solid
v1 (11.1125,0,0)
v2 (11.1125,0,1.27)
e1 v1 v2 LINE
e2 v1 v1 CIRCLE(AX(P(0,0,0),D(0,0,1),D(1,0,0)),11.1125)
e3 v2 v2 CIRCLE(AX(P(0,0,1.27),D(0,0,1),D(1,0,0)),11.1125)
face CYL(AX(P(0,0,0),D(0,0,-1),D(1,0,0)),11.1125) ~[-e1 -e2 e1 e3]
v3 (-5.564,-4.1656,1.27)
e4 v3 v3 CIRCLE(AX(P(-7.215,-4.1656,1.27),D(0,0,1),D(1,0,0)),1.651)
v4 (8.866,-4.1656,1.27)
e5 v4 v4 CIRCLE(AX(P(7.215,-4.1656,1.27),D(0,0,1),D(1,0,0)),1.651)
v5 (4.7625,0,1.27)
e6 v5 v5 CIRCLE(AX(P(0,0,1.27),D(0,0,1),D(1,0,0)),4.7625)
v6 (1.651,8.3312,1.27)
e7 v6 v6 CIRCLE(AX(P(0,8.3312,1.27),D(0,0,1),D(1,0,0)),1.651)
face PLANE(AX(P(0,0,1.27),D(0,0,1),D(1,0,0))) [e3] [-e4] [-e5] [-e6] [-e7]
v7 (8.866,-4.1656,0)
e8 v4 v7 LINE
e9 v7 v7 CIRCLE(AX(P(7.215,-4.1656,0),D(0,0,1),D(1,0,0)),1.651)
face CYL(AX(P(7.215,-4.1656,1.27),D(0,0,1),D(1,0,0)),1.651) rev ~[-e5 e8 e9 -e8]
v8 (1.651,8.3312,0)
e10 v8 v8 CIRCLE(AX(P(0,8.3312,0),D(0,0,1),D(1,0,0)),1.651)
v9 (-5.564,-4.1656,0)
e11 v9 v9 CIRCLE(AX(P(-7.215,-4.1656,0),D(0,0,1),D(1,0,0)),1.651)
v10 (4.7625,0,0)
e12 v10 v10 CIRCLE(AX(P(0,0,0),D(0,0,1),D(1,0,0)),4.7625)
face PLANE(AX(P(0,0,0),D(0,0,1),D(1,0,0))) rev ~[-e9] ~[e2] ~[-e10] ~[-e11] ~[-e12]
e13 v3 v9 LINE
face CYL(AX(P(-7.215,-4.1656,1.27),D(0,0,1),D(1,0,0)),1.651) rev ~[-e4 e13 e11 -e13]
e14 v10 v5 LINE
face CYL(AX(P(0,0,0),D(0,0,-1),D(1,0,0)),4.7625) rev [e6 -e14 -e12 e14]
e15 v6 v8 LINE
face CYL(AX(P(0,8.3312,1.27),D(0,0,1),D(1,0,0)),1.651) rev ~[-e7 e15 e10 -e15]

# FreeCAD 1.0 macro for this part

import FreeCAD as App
import Part
import Sketcher
Q = App.Units.Quantity

doc = App.newDocument("Part")
body = doc.addObject("PartDesign::Body", "Body")

# Sketch on XY plane
sketch1 = doc.addObject("Sketcher::SketchObject", "Sketch")
body.addObject(sketch1)
sketch1.AttachmentSupport = (doc.XY_Plane, [""])
sketch1.MapMode = "FlatFace"
sketch1.addGeometry(Part.Circle(App.Vector(0, 0, 0), App.Vector(0, 0, 1), 11.1), False)
sketch1.addGeometry(Part.Circle(App.Vector(0, 0, 0), App.Vector(0, 0, 1), 4.8), False)
sketch1.addConstraint(Sketcher.Constraint("Coincident", 0, 3, -1, 1))
sketch1.addConstraint(Sketcher.Constraint("Coincident", 1, 3, -1, 1))
sketch1.addConstraint(Sketcher.Constraint("Diameter", 0, Q("0.875 in")))
sketch1.addConstraint(Sketcher.Constraint("Diameter", 1, Q("0.375 in")))
pad1 = doc.addObject("PartDesign::Pad", "Pad")
body.addObject(pad1)
pad1.Profile = sketch1
pad1.Length = Q("0.05 in")

# Sketch on XY plane
sketch2 = doc.addObject("Sketcher::SketchObject", "Sketch001")
body.addObject(sketch2)
sketch2.AttachmentSupport = (doc.XY_Plane, [""])
sketch2.MapMode = "FlatFace"
sketch2.AttachmentOffset = App.Placement(App.Vector(0, 0, 0.05 * 25.4), App.Rotation())
sketch2.addGeometry(Part.Circle(App.Vector(0, 8.3, 0), App.Vector(0, 0, 1), 1.7), False)
sketch2.addGeometry(Part.Circle(App.Vector(-7.2, -4.2, 0), App.Vector(0, 0, 1), 1.7), False)
sketch2.addGeometry(Part.Circle(App.Vector(7.2, -4.2, 0), App.Vector(0, 0, 1), 1.7), False)
sketch2.addConstraint(Sketcher.Constraint("Equal", 0, 1))
sketch2.addConstraint(Sketcher.Constraint("Equal", 1, 2))
sketch2.addConstraint(Sketcher.Constraint("Symmetric", 1, 3, 2, 3, -2))
sketch2.addConstraint(Sketcher.Constraint("PointOnObject", 0, 3, -2))
sketch2.addConstraint(Sketcher.Constraint("Diameter", 0, Q("0.13 in")))
sketch2.addConstraint(Sketcher.Constraint("DistanceY", -1, 1, 0, 3, Q("0.328 in")))
sketch2.addConstraint(Sketcher.Constraint("DistanceY", 1, 3, -1, 1, Q("0.164 in")))
sketch2.addConstraint(Sketcher.Constraint("DistanceX", 1, 3, 2, 3, Q("0.5681 in")))
pocket1 = doc.addObject("PartDesign::Pocket", "Pocket")
body.addObject(pocket1)
pocket1.Profile = sketch2
pocket1.Length = Q("0.05 in")

doc.recompute()
